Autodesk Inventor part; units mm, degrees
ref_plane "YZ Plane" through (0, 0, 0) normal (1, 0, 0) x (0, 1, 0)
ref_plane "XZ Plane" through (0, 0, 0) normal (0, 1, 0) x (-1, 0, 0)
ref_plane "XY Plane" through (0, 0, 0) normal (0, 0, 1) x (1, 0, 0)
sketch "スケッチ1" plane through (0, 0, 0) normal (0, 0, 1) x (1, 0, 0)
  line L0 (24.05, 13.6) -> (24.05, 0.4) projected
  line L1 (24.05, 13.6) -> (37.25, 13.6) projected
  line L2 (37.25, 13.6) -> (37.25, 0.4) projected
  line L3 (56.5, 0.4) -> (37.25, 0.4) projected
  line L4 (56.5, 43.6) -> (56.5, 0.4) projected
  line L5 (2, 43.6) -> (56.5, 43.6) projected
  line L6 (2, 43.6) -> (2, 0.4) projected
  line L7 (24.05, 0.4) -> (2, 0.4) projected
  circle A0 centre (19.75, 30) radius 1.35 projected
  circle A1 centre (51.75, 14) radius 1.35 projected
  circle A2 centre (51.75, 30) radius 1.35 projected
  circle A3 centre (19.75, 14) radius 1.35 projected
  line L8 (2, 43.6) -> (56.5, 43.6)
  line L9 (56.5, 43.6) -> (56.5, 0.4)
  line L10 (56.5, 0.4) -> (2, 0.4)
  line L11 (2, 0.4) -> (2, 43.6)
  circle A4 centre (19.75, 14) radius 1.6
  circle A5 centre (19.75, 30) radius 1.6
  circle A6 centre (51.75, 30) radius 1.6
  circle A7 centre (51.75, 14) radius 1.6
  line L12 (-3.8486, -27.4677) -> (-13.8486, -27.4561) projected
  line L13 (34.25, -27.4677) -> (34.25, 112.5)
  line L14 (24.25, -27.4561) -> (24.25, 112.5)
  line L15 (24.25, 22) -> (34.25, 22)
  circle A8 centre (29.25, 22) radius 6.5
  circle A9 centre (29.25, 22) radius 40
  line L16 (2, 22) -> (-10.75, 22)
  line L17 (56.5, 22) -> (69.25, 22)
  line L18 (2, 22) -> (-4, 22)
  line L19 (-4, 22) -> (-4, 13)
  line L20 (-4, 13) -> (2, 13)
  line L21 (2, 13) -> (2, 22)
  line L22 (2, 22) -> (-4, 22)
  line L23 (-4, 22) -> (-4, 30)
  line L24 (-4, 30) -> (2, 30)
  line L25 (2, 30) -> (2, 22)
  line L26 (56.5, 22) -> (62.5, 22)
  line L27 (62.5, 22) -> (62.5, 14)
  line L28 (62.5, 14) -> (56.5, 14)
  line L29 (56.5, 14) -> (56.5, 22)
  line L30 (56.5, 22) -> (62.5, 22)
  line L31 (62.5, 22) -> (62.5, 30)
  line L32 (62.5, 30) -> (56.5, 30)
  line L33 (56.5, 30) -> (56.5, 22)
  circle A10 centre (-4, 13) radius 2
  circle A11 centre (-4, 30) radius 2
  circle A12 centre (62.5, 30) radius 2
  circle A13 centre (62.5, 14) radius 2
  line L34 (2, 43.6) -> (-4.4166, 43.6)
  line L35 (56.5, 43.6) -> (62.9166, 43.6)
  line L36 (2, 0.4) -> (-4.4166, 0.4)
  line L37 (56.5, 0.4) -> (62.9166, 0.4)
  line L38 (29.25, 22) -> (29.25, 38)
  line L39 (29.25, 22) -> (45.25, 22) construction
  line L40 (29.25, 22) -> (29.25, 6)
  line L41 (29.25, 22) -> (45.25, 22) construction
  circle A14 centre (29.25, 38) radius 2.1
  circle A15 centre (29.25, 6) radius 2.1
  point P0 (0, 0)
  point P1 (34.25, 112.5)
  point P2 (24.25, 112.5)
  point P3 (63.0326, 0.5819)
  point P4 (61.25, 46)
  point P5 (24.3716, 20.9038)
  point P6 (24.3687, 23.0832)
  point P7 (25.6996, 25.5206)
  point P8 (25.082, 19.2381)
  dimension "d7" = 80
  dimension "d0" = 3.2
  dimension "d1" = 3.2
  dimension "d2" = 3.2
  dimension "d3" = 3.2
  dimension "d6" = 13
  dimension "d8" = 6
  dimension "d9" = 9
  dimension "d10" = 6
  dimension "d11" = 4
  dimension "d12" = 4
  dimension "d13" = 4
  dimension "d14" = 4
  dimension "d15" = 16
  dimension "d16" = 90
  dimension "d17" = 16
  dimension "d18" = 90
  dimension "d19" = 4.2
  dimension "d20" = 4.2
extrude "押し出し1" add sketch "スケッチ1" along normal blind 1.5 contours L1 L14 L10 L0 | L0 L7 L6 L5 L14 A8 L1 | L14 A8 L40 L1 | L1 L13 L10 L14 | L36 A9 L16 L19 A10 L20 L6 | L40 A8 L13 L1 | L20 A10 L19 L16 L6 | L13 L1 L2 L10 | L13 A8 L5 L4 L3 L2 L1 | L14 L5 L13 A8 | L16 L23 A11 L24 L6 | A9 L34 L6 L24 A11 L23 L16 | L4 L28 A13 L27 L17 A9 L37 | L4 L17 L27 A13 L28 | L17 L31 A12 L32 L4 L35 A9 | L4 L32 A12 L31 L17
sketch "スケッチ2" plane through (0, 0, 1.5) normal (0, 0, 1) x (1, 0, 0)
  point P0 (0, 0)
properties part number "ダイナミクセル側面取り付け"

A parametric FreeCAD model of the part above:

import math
import FreeCAD as App
import Part
import Sketcher
Q = App.Units.Quantity

doc = App.newDocument("Part")
body = doc.addObject("PartDesign::Body", "Body")

# Sketch on XY plane
sketch1 = body.newObject("Sketcher::SketchObject", "Sketch")
sketch1.AttachmentSupport = (doc.getObject("XY_Plane"), [""])
sketch1.MapMode = "FlatFace"
sketch1.addGeometry([
    Part.ArcOfCircle(Part.Circle(App.Vector(29.2, 22, 0), App.Vector(0, 0, 1), 40), math.radians(-33), math.radians(33)),  # 0
    Part.LineSegment(App.Vector(62.9, 43.6, 0), App.Vector(-4.4, 43.6, 0)),  # 1
    Part.ArcOfCircle(Part.Circle(App.Vector(29.2, 22, 0), App.Vector(0, 0, 1), 40), math.radians(147), math.radians(213)),  # 2
    Part.LineSegment(App.Vector(-4.4, 0.4, 0), App.Vector(62.9, 0.4, 0)),  # 3
    Part.Circle(App.Vector(19.8, 14, 0), App.Vector(0, 0, 1), 1.6),  # 4
    Part.Circle(App.Vector(29.2, 22, 0), App.Vector(0, 0, 1), 6.5),  # 5
    Part.Circle(App.Vector(19.8, 30, 0), App.Vector(0, 0, 1), 1.6),  # 6
    Part.Circle(App.Vector(29.2, 6, 0), App.Vector(0, 0, 1), 2.1),  # 7
    Part.Circle(App.Vector(-4, 13, 0), App.Vector(0, 0, 1), 2),  # 8
    Part.Circle(App.Vector(-4, 30, 0), App.Vector(0, 0, 1), 2),  # 9
    Part.Circle(App.Vector(29.2, 38, 0), App.Vector(0, 0, 1), 2.1),  # 10
    Part.Circle(App.Vector(51.8, 14, 0), App.Vector(0, 0, 1), 1.6),  # 11
    Part.Circle(App.Vector(51.8, 30, 0), App.Vector(0, 0, 1), 1.6),  # 12
    Part.Circle(App.Vector(62.5, 30, 0), App.Vector(0, 0, 1), 2),  # 13
    Part.Circle(App.Vector(62.5, 14, 0), App.Vector(0, 0, 1), 2),  # 14
], False)
sketch1.addConstraint([
    Sketcher.Constraint("Coincident", 0, 2, 1, 1),
    Sketcher.Constraint("Coincident", 1, 2, 2, 1),
    Sketcher.Constraint("Coincident", 2, 2, 3, 1),
    Sketcher.Constraint("Coincident", 3, 2, 0, 1),
    Sketcher.Constraint("Horizontal", 1),
    Sketcher.Constraint("Horizontal", 3),
    Sketcher.Constraint("Coincident", 2, 3, 0, 3),
    Sketcher.Constraint("Coincident", 5, 3, 0, 3),
    Sketcher.Constraint("Equal", 0, 2),
    Sketcher.Constraint("Equal", 4, 6),
    Sketcher.Constraint("Equal", 8, 9),
    Sketcher.Constraint("Equal", 7, 10),
    Sketcher.Constraint("Equal", 6, 11),
    Sketcher.Constraint("Equal", 11, 12),
    Sketcher.Constraint("Equal", 9, 13),
    Sketcher.Constraint("Equal", 13, 14),
    Sketcher.Constraint("Horizontal", 6, 3, 9, 3),
    Sketcher.Constraint("Horizontal", 4, 3, 11, 3),
    Sketcher.Constraint("Horizontal", 9, 3, 12, 3),
    Sketcher.Constraint("Horizontal", 12, 3, 13, 3),
    Sketcher.Constraint("Horizontal", 11, 3, 14, 3),
    Sketcher.Constraint("Vertical", 4, 3, 6, 3),
    Sketcher.Constraint("Vertical", 5, 3, 7, 3),
    Sketcher.Constraint("Vertical", 8, 3, 9, 3),
    Sketcher.Constraint("Vertical", 7, 3, 10, 3),
    Sketcher.Constraint("Vertical", 11, 3, 12, 3),
    Sketcher.Constraint("Vertical", 13, 3, 14, 3),
    Sketcher.Constraint("Vertical", 1, 2, 2, 2),
    Sketcher.Constraint("Diameter", 5, Q("13 mm")),
    Sketcher.Constraint("Diameter", 8, Q("4 mm")),
    Sketcher.Constraint("Radius", 0, Q("40 mm")),
    Sketcher.Constraint("Diameter", 4, Q("3.2 mm")),
    Sketcher.Constraint("Diameter", 7, Q("4.2 mm")),
    Sketcher.Constraint("DistanceY", -1, 1, 7, 3, Q("6 mm")),
    Sketcher.Constraint("DistanceX", 8, 3, -1, 1, Q("4 mm")),
    Sketcher.Constraint("DistanceY", -1, 1, 8, 3, Q("13 mm")),
    Sketcher.Constraint("DistanceY", 4, 3, 6, 3, Q("16 mm")),
    Sketcher.Constraint("DistanceY", 7, 3, 0, 3, Q("16 mm")),
    Sketcher.Constraint("DistanceY", 0, 3, 10, 3, Q("16 mm")),
    Sketcher.Constraint("DistanceY", -1, 1, 4, 3, Q("14 mm")),
    Sketcher.Constraint("DistanceX", 4, 3, 11, 3, Q("32 mm")),
    Sketcher.Constraint("DistanceX", -1, 1, 13, 3, Q("62.5 mm")),
    Sketcher.Constraint("DistanceY", -1, 1, 0, 2, Q("43.6 mm")),
    Sketcher.Constraint("DistanceX", 4, 3, 0, 3, Q("9.5 mm")),
    Sketcher.Constraint("DistanceX", -1, 1, 0, 3, Q("29.25 mm")),
])
pad1 = body.newObject("PartDesign::Pad", "Pad")
pad1.Profile = sketch1
pad1.Length = 1.5

doc.recompute()
